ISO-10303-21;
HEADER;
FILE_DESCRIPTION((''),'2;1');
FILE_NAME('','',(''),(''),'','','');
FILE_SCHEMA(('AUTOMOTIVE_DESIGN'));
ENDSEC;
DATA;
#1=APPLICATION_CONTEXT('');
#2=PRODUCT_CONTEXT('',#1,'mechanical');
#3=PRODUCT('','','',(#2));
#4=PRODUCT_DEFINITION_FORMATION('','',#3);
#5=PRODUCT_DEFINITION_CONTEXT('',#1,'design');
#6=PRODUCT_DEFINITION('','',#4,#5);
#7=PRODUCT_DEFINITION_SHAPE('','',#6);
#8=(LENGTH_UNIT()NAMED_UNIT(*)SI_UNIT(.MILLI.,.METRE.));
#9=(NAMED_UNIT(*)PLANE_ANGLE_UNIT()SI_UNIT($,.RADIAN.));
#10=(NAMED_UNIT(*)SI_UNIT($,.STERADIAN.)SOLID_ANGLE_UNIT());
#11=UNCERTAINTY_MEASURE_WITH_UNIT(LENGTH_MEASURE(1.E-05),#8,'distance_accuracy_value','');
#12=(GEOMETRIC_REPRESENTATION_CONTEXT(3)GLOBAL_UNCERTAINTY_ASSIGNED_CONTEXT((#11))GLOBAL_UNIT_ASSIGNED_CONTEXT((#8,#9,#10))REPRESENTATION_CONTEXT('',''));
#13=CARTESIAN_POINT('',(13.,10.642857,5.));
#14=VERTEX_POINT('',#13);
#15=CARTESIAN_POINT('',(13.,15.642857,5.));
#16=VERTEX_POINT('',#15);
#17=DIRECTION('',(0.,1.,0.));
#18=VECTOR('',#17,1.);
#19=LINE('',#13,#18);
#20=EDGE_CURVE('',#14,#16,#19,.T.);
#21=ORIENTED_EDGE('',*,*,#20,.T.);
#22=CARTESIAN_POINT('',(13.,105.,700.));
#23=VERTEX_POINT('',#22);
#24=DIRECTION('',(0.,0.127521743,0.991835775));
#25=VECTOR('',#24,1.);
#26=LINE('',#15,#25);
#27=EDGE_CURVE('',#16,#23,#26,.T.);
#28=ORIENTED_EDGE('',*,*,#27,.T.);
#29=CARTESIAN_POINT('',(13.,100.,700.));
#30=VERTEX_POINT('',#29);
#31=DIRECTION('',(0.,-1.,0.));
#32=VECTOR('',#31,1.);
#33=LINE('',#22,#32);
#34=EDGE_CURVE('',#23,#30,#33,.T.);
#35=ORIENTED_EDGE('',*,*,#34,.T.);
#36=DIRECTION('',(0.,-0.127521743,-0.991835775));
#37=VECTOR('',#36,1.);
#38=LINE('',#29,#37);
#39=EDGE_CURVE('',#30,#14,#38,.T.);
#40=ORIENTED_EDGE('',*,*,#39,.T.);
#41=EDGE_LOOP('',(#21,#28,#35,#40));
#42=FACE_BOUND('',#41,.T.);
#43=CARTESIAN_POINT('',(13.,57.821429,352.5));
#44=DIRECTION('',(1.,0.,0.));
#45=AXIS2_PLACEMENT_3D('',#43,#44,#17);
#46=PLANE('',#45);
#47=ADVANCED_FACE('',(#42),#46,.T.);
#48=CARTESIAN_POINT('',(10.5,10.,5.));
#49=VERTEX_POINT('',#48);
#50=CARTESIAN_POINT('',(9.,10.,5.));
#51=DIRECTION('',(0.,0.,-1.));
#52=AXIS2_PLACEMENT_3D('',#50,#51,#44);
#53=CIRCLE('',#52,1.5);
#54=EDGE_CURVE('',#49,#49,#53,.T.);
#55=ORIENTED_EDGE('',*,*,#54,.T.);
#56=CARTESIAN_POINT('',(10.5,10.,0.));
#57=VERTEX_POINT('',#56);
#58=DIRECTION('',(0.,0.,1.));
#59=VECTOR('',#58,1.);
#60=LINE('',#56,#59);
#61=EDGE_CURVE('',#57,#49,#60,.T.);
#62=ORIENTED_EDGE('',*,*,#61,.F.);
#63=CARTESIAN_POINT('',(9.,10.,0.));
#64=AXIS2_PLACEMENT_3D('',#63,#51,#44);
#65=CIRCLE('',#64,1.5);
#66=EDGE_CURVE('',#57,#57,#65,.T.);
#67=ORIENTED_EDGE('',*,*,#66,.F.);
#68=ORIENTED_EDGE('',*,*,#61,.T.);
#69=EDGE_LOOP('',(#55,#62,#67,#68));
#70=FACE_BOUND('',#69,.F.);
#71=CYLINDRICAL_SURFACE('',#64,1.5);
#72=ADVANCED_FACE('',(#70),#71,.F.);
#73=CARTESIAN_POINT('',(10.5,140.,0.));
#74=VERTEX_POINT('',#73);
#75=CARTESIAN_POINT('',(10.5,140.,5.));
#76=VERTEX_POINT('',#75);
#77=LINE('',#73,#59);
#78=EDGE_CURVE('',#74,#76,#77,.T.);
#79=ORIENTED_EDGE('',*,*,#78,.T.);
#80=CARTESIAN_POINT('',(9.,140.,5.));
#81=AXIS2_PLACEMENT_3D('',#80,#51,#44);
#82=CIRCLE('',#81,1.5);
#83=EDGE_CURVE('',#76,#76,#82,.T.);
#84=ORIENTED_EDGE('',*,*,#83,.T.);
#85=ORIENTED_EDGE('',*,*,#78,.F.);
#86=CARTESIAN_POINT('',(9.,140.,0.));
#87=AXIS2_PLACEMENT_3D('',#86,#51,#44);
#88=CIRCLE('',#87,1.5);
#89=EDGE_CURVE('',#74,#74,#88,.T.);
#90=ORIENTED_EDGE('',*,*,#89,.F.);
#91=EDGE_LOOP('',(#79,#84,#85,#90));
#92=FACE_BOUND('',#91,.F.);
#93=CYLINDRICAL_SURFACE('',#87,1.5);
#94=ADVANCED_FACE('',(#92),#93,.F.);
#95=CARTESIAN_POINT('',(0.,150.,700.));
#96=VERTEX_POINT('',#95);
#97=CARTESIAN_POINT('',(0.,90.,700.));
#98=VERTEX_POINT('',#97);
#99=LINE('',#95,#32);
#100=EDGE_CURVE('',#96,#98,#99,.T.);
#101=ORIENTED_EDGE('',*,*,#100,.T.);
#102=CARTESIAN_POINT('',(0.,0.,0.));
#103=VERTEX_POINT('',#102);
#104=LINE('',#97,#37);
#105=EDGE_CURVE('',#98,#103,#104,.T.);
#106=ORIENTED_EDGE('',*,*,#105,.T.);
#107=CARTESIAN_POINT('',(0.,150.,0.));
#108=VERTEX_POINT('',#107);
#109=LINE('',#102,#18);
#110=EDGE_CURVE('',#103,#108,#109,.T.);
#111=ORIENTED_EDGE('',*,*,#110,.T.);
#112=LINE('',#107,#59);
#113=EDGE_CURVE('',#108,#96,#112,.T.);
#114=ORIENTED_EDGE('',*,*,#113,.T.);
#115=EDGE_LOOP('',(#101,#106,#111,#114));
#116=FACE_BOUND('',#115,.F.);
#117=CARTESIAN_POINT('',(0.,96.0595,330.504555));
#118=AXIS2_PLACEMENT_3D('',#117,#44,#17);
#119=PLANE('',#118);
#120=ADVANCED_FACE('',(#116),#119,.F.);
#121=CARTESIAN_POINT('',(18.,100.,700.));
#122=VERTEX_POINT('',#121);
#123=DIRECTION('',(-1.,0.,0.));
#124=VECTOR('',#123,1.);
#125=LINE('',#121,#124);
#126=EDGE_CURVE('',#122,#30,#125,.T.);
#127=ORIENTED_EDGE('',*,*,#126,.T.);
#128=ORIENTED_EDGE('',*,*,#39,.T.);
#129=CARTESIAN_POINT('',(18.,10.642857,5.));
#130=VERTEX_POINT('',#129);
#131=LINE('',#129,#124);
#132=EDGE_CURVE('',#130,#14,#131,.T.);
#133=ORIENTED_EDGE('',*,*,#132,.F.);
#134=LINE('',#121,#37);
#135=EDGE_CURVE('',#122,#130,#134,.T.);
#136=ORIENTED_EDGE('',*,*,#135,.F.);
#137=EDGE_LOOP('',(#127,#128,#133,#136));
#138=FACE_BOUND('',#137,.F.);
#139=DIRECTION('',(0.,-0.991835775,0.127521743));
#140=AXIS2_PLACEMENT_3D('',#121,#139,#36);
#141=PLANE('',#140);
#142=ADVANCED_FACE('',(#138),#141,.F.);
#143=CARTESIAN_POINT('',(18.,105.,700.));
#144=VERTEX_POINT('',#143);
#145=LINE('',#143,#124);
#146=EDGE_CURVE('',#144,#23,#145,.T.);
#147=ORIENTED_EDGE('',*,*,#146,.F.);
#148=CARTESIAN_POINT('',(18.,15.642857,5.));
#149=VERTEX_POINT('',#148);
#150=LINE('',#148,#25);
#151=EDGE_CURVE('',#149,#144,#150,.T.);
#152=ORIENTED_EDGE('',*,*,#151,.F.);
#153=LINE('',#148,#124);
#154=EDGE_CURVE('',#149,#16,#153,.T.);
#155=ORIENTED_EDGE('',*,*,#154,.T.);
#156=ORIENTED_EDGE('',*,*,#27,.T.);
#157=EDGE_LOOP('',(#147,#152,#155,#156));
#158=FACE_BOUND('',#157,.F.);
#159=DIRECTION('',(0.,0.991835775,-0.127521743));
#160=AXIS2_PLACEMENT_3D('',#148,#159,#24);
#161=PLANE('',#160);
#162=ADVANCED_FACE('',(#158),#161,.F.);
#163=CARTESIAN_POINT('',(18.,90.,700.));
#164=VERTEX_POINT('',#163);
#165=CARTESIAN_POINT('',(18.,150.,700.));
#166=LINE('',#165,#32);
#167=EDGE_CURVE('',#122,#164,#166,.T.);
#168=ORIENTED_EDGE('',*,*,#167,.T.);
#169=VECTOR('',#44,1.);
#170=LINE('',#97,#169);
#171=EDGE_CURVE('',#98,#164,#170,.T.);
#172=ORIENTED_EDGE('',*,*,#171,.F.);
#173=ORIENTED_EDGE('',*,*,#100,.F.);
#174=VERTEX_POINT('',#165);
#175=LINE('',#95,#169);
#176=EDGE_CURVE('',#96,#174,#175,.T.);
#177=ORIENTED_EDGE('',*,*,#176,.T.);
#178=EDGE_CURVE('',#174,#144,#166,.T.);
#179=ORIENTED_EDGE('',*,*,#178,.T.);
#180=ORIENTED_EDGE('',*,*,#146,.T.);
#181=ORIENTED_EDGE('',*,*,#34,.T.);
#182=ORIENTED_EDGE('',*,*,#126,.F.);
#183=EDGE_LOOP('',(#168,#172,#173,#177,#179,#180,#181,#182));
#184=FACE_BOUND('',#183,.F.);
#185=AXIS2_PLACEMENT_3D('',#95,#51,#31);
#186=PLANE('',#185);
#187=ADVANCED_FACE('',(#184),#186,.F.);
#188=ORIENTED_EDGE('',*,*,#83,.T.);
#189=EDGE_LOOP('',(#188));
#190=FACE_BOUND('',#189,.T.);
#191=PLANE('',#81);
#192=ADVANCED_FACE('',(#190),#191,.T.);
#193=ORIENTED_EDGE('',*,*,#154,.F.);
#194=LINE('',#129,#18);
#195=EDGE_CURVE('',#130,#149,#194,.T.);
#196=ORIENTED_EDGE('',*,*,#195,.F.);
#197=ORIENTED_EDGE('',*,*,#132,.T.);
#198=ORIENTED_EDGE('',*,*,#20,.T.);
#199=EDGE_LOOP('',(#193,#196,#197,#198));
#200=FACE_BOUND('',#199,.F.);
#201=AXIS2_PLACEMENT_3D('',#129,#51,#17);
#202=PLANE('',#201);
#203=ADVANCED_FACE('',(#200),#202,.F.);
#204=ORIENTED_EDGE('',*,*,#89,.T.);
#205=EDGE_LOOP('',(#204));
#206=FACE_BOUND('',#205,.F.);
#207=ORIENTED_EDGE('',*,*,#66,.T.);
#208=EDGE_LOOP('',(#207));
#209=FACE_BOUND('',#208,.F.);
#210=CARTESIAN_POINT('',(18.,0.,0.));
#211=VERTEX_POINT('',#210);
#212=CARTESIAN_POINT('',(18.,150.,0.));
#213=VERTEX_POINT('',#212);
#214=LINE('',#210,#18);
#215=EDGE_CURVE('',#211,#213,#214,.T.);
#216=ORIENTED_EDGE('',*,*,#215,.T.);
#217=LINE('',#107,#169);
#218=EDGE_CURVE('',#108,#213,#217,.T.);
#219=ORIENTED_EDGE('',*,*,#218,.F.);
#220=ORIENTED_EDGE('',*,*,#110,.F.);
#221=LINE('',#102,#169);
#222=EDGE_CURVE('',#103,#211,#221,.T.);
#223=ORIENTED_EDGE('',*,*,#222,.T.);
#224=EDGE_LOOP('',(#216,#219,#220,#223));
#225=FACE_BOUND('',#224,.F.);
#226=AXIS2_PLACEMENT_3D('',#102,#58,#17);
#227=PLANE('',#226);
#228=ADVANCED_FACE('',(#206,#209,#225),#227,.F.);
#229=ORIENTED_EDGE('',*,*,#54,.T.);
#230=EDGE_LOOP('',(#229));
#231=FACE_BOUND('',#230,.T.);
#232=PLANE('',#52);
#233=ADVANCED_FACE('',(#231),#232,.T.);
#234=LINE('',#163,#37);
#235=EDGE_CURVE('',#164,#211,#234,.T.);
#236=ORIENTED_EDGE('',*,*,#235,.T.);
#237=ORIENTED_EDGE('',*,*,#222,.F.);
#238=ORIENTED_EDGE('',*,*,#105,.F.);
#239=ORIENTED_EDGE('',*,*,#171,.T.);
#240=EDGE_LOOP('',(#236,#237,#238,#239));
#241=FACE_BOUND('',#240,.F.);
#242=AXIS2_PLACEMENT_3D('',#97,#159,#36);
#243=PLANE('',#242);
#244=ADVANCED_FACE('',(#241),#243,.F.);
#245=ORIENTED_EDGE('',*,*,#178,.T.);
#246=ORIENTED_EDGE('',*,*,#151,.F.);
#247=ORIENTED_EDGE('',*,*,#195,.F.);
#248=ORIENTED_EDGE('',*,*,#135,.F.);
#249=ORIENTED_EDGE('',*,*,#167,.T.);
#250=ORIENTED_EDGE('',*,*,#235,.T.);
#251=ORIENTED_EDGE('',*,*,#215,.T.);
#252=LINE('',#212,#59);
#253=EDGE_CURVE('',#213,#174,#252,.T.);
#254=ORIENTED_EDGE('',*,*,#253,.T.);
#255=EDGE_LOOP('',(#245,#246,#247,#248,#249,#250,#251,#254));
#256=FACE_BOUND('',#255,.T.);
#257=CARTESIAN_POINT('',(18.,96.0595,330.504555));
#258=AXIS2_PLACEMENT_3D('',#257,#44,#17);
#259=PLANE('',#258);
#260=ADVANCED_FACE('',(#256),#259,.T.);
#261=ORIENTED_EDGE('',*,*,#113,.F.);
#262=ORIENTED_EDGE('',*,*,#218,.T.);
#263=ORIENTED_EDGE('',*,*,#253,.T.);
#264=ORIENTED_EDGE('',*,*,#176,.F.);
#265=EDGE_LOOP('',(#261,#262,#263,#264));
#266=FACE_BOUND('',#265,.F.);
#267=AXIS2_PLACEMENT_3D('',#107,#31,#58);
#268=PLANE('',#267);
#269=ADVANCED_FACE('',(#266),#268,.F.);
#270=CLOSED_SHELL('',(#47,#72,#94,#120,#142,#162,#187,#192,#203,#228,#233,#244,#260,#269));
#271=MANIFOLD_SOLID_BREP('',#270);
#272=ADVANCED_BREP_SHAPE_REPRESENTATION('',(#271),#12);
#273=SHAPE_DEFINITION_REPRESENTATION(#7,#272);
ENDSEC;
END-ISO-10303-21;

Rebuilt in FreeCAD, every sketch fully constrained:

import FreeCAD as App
import Part
import Sketcher
Q = App.Units.Quantity

doc = App.newDocument("Part")
body = doc.addObject("PartDesign::Body", "Body")

# Sketch on YZ plane
sketch1 = body.newObject("Sketcher::SketchObject", "Sketch")
sketch1.AttachmentSupport = (doc.getObject("YZ_Plane"), [""])
sketch1.MapMode = "FlatFace"
sketch1.addGeometry([
    Part.LineSegment(App.Vector(90, 700, 0), App.Vector(0, 0, 0)),
    Part.LineSegment(App.Vector(0, 0, 0), App.Vector(150, 0, 0)),
    Part.LineSegment(App.Vector(150, 0, 0), App.Vector(150, 700, 0)),
    Part.LineSegment(App.Vector(150, 700, 0), App.Vector(90, 700, 0)),
], False)
sketch1.addConstraint([
    Sketcher.Constraint("Coincident", 0, 2, 1, 1),
    Sketcher.Constraint("Coincident", 1, 2, 2, 1),
    Sketcher.Constraint("Coincident", 2, 2, 3, 1),
    Sketcher.Constraint("Coincident", 3, 2, 0, 1),
    Sketcher.Constraint("Horizontal", 1),
    Sketcher.Constraint("Vertical", 2),
    Sketcher.Constraint("Horizontal", 3),
    Sketcher.Constraint("Coincident", 0, 2, -1, 1),
    Sketcher.Constraint("DistanceX", 1, 1, 1, 2, Q("150 mm")),
    Sketcher.Constraint("DistanceX", 3, 2, 3, 1, Q("60 mm")),
    Sketcher.Constraint("DistanceY", 2, 1, 2, 2, Q("700 mm")),
])
pad1 = body.newObject("PartDesign::Pad", "Pad")
pad1.Profile = sketch1
pad1.Length = 18

# Sketch on YZ plane
sketch2 = body.newObject("Sketcher::SketchObject", "Sketch001")
sketch2.AttachmentSupport = (doc.getObject("YZ_Plane"), [""])
sketch2.MapMode = "FlatFace"
sketch2.AttachmentOffset = App.Placement(App.Vector(0, 0, 18), App.Rotation())
sketch2.addGeometry([
    Part.LineSegment(App.Vector(100, 700, 0), App.Vector(11, 5, 0)),
    Part.LineSegment(App.Vector(11, 5, 0), App.Vector(16, 5, 0)),
    Part.LineSegment(App.Vector(16, 5, 0), App.Vector(105, 700, 0)),
    Part.LineSegment(App.Vector(105, 700, 0), App.Vector(100, 700, 0)),
], False)
sketch2.addConstraint([
    Sketcher.Constraint("Coincident", 0, 2, 1, 1),
    Sketcher.Constraint("Coincident", 1, 2, 2, 1),
    Sketcher.Constraint("Coincident", 2, 2, 3, 1),
    Sketcher.Constraint("Coincident", 3, 2, 0, 1),
    Sketcher.Constraint("Horizontal", 1),
    Sketcher.Constraint("Horizontal", 3),
    Sketcher.Constraint("Parallel", 0, 2),
    Sketcher.Constraint("DistanceX", 1, 1, 1, 2, Q("5 mm")),
    Sketcher.Constraint("DistanceY", -1, 1, 0, 2, Q("5 mm")),
    Sketcher.Constraint("DistanceX", -1, 1, 2, 2, Q("105 mm")),
    Sketcher.Constraint("DistanceY", -1, 1, 2, 2, Q("700 mm")),
    Sketcher.Constraint("Distance", 0, Q("700.720842 mm")),
])
pocket1 = body.newObject("PartDesign::Pocket", "Pocket")
pocket1.Profile = sketch2
pocket1.Length = 5

# Sketch on XY plane
sketch3 = body.newObject("Sketcher::SketchObject", "Sketch002")
sketch3.AttachmentSupport = (doc.getObject("XY_Plane"), [""])
sketch3.MapMode = "FlatFace"
sketch3.addGeometry([
    Part.Circle(App.Vector(9, 10, 0), App.Vector(0, 0, 1), 1.5),
    Part.Circle(App.Vector(9, 140, 0), App.Vector(0, 0, 1), 1.5),
], False)
sketch3.addConstraint([
    Sketcher.Constraint("Equal", 0, 1),
    Sketcher.Constraint("Vertical", 0, 3, 1, 3),
    Sketcher.Constraint("Diameter", 0, Q("3 mm")),
    Sketcher.Constraint("DistanceX", -1, 1, 0, 3, Q("9 mm")),
    Sketcher.Constraint("DistanceY", -1, 1, 0, 3, Q("10 mm")),
    Sketcher.Constraint("DistanceY", -1, 1, 1, 3, Q("140 mm")),
])
pocket2 = body.newObject("PartDesign::Pocket", "Pocket001")
pocket2.Profile = sketch3
pocket2.Length = 5
pocket2.Reversed = True

doc.recompute()
